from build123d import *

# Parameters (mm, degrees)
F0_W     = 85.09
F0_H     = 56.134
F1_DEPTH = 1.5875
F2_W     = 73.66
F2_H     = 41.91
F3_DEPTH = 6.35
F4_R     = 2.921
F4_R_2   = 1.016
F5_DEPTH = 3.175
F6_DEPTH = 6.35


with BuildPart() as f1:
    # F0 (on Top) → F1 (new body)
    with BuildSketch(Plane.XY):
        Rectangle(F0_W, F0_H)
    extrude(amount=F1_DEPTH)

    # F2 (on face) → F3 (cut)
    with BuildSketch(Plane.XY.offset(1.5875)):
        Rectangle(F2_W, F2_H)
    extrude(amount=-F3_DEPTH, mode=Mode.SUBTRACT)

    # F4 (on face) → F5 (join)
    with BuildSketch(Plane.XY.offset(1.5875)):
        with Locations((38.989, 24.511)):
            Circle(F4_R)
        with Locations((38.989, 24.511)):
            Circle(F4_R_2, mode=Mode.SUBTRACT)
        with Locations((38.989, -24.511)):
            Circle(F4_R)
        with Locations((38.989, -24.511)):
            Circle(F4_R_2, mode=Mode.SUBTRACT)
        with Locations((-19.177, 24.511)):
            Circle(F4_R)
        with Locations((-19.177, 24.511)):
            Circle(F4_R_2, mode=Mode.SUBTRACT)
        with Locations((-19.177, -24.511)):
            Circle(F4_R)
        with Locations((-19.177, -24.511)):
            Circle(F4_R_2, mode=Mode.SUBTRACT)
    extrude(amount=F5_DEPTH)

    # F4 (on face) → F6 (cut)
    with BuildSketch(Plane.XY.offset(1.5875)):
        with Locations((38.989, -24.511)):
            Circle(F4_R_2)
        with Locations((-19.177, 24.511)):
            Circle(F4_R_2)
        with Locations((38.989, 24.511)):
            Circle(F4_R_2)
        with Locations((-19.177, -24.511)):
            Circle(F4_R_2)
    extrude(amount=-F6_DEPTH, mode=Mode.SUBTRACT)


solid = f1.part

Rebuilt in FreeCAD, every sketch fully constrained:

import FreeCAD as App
import Part
import Sketcher

V = App.Vector
Q = App.Units.Quantity


def add_polygon(sketch, points):
    """Adds a closed chain of lines whose ends are joined by coincident constraints."""
    first, n = sketch.GeometryCount, len(points)
    for a, b in zip(points, points[1:] + points[:1]):
        sketch.addGeometry(Part.LineSegment(App.Vector(*a, 0), App.Vector(*b, 0)), False)
    for i in range(n):
        sketch.addConstraint(Sketcher.Constraint("Coincident", first + i, 2, first + (i + 1) % n, 1))

doc = App.newDocument("Part")
params = doc.addObject("Spreadsheet::Sheet", "Params")
for row, (alias, value) in enumerate([
    ("sketch1_width", "3.35 in"),
    ("sketch1_height", "2.21 in"),
    ("pad1_length", "0.0625 in"),
    ("sketch2_width", "2.9 in"),
    ("sketch2_height", "1.65 in"),
    ("pocket1_length", "0.25 in"),
    ("sketch3_diameter", "0.23 in"),
    ("sketch3_diameter2", "0.08 in"),
    ("pad2_length", "0.125 in"),
    ("sketch4_diameter", "0.08 in"),
    ("pocket2_length", "0.25 in"),
], start=1):
    params.set(f"A{row}", alias)
    params.set(f"B{row}", "=" + value)
    params.setAlias(f"B{row}", alias)

body = doc.addObject("PartDesign::Body", "Body")

# Sketch on XY plane
sketch1 = doc.addObject("Sketcher::SketchObject", "Sketch")
body.addObject(sketch1)
sketch1.AttachmentSupport = (doc.XY_Plane, [""])
sketch1.MapMode = "FlatFace"
add_polygon(sketch1, [(-43, 28), (-43, -28), (43, -28), (43, 28)])  # lines 0-3
sketch1.addConstraint([
    Sketcher.Constraint("Vertical", 0),
    Sketcher.Constraint("Horizontal", 1),
    Sketcher.Constraint("Vertical", 2),
    Sketcher.Constraint("Horizontal", 3),
    Sketcher.Constraint("Symmetric", 0, 2, 2, 2, -1, 1),
    Sketcher.Constraint("DistanceX", 1, 1, 1, 2, Q("3.35 in")),
    Sketcher.Constraint("DistanceY", 0, 2, 0, 1, Q("2.21 in")),
])
sketch1.setExpression("Constraints[9]", "Params.sketch1_width")
sketch1.setExpression("Constraints[10]", "Params.sketch1_height")
pad1 = doc.addObject("PartDesign::Pad", "Pad")
body.addObject(pad1)
pad1.Profile = sketch1
pad1.setExpression("Length", "Params.pad1_length")

# Sketch on XY plane
sketch2 = doc.addObject("Sketcher::SketchObject", "Sketch001")
body.addObject(sketch2)
sketch2.AttachmentSupport = (doc.XY_Plane, [""])
sketch2.MapMode = "FlatFace"
sketch2.AttachmentOffset = App.Placement(V(0, 0, 0.0625 * 25.4), App.Rotation())
add_polygon(sketch2, [(-37, 21), (-37, -21), (37, -21), (37, 21)])  # lines 0-3
sketch2.addConstraint([
    Sketcher.Constraint("Vertical", 0),
    Sketcher.Constraint("Horizontal", 1),
    Sketcher.Constraint("Vertical", 2),
    Sketcher.Constraint("Horizontal", 3),
    Sketcher.Constraint("Symmetric", 0, 2, 2, 2, -1, 1),
    Sketcher.Constraint("DistanceX", 1, 1, 1, 2, Q("2.9 in")),
    Sketcher.Constraint("DistanceY", 0, 2, 0, 1, Q("1.65 in")),
])
sketch2.setExpression("Constraints[9]", "Params.sketch2_width")
sketch2.setExpression("Constraints[10]", "Params.sketch2_height")
pocket1 = doc.addObject("PartDesign::Pocket", "Pocket")
body.addObject(pocket1)
pocket1.Profile = sketch2
pocket1.setExpression("Length", "Params.pocket1_length")

# Sketch on XY plane
sketch3 = doc.addObject("Sketcher::SketchObject", "Sketch002")
body.addObject(sketch3)
sketch3.AttachmentSupport = (doc.XY_Plane, [""])
sketch3.MapMode = "FlatFace"
sketch3.AttachmentOffset = App.Placement(V(0, 0, 0.0625 * 25.4), App.Rotation())
sketch3.addGeometry([
    Part.Circle(V(39, 24.5, 0), V(0, 0, 1), 2.9),  # 0
    Part.Circle(V(39, 24.5, 0), V(0, 0, 1), 1),  # 1
    Part.Circle(V(39, -24.5, 0), V(0, 0, 1), 2.9),  # 2
    Part.Circle(V(39, -24.5, 0), V(0, 0, 1), 1),  # 3
    Part.Circle(V(-19.2, 24.5, 0), V(0, 0, 1), 2.9),  # 4
    Part.Circle(V(-19.2, 24.5, 0), V(0, 0, 1), 1),  # 5
    Part.Circle(V(-19.2, -24.5, 0), V(0, 0, 1), 2.9),  # 6
    Part.Circle(V(-19.2, -24.5, 0), V(0, 0, 1), 1),  # 7
], False)
sketch3.addConstraint([
    Sketcher.Constraint("Coincident", 1, 3, 0, 3),
    Sketcher.Constraint("Coincident", 3, 3, 2, 3),
    Sketcher.Constraint("Coincident", 5, 3, 4, 3),
    Sketcher.Constraint("Coincident", 7, 3, 6, 3),
    Sketcher.Constraint("Equal", 0, 2),
    Sketcher.Constraint("Equal", 1, 3),
    Sketcher.Constraint("Equal", 2, 4),
    Sketcher.Constraint("Equal", 3, 5),
    Sketcher.Constraint("Equal", 4, 6),
    Sketcher.Constraint("Equal", 5, 7),
    Sketcher.Constraint("Symmetric", 0, 3, 2, 3, -1),
    Sketcher.Constraint("Symmetric", 4, 3, 6, 3, -1),
    Sketcher.Constraint("Horizontal", 1, 3, 4, 3),
    Sketcher.Constraint("Diameter", 0, Q("0.23 in")),
    Sketcher.Constraint("Diameter", 1, Q("0.08 in")),
    Sketcher.Constraint("DistanceY", 2, 3, 0, 3, Q("1.93 in")),
    Sketcher.Constraint("DistanceX", 4, 3, 0, 3, Q("2.29 in")),
    Sketcher.Constraint("DistanceX", -1, 1, 0, 3, Q("1.535 in")),
])
sketch3.setExpression("Constraints[13]", "Params.sketch3_diameter")
sketch3.setExpression("Constraints[14]", "Params.sketch3_diameter2")
pad2 = doc.addObject("PartDesign::Pad", "Pad001")
body.addObject(pad2)
pad2.Profile = sketch3
pad2.setExpression("Length", "Params.pad2_length")

# Sketch on XY plane
sketch4 = doc.addObject("Sketcher::SketchObject", "Sketch003")
body.addObject(sketch4)
sketch4.AttachmentSupport = (doc.XY_Plane, [""])
sketch4.MapMode = "FlatFace"
sketch4.AttachmentOffset = App.Placement(V(0, 0, 0.0625 * 25.4), App.Rotation())
sketch4.addGeometry([
    Part.Circle(V(39, -24.5, 0), V(0, 0, 1), 1),
    Part.Circle(V(-19.2, 24.5, 0), V(0, 0, 1), 1),
    Part.Circle(V(39, 24.5, 0), V(0, 0, 1), 1),
    Part.Circle(V(-19.2, -24.5, 0), V(0, 0, 1), 1),
], False)
sketch4.addConstraint([
    Sketcher.Constraint("Equal", 0, 1),
    Sketcher.Constraint("Equal", 1, 2),
    Sketcher.Constraint("Equal", 2, 3),
    Sketcher.Constraint("Symmetric", 0, 3, 2, 3, -1),
    Sketcher.Constraint("Symmetric", 1, 3, 3, 3, -1),
    Sketcher.Constraint("Horizontal", 1, 3, 2, 3),
    Sketcher.Constraint("Diameter", 0, Q("0.08 in")),
    Sketcher.Constraint("DistanceX", 1, 3, 0, 3, Q("2.29 in")),
    Sketcher.Constraint("DistanceY", 0, 3, 1, 3, Q("1.93 in")),
    Sketcher.Constraint("DistanceX", -1, 1, 0, 3, Q("1.535 in")),
])
sketch4.setExpression("Constraints[6]", "Params.sketch4_diameter")
pocket2 = doc.addObject("PartDesign::Pocket", "Pocket001")
body.addObject(pocket2)
pocket2.Profile = sketch4
pocket2.setExpression("Length", "Params.pocket2_length")

doc.recompute()
